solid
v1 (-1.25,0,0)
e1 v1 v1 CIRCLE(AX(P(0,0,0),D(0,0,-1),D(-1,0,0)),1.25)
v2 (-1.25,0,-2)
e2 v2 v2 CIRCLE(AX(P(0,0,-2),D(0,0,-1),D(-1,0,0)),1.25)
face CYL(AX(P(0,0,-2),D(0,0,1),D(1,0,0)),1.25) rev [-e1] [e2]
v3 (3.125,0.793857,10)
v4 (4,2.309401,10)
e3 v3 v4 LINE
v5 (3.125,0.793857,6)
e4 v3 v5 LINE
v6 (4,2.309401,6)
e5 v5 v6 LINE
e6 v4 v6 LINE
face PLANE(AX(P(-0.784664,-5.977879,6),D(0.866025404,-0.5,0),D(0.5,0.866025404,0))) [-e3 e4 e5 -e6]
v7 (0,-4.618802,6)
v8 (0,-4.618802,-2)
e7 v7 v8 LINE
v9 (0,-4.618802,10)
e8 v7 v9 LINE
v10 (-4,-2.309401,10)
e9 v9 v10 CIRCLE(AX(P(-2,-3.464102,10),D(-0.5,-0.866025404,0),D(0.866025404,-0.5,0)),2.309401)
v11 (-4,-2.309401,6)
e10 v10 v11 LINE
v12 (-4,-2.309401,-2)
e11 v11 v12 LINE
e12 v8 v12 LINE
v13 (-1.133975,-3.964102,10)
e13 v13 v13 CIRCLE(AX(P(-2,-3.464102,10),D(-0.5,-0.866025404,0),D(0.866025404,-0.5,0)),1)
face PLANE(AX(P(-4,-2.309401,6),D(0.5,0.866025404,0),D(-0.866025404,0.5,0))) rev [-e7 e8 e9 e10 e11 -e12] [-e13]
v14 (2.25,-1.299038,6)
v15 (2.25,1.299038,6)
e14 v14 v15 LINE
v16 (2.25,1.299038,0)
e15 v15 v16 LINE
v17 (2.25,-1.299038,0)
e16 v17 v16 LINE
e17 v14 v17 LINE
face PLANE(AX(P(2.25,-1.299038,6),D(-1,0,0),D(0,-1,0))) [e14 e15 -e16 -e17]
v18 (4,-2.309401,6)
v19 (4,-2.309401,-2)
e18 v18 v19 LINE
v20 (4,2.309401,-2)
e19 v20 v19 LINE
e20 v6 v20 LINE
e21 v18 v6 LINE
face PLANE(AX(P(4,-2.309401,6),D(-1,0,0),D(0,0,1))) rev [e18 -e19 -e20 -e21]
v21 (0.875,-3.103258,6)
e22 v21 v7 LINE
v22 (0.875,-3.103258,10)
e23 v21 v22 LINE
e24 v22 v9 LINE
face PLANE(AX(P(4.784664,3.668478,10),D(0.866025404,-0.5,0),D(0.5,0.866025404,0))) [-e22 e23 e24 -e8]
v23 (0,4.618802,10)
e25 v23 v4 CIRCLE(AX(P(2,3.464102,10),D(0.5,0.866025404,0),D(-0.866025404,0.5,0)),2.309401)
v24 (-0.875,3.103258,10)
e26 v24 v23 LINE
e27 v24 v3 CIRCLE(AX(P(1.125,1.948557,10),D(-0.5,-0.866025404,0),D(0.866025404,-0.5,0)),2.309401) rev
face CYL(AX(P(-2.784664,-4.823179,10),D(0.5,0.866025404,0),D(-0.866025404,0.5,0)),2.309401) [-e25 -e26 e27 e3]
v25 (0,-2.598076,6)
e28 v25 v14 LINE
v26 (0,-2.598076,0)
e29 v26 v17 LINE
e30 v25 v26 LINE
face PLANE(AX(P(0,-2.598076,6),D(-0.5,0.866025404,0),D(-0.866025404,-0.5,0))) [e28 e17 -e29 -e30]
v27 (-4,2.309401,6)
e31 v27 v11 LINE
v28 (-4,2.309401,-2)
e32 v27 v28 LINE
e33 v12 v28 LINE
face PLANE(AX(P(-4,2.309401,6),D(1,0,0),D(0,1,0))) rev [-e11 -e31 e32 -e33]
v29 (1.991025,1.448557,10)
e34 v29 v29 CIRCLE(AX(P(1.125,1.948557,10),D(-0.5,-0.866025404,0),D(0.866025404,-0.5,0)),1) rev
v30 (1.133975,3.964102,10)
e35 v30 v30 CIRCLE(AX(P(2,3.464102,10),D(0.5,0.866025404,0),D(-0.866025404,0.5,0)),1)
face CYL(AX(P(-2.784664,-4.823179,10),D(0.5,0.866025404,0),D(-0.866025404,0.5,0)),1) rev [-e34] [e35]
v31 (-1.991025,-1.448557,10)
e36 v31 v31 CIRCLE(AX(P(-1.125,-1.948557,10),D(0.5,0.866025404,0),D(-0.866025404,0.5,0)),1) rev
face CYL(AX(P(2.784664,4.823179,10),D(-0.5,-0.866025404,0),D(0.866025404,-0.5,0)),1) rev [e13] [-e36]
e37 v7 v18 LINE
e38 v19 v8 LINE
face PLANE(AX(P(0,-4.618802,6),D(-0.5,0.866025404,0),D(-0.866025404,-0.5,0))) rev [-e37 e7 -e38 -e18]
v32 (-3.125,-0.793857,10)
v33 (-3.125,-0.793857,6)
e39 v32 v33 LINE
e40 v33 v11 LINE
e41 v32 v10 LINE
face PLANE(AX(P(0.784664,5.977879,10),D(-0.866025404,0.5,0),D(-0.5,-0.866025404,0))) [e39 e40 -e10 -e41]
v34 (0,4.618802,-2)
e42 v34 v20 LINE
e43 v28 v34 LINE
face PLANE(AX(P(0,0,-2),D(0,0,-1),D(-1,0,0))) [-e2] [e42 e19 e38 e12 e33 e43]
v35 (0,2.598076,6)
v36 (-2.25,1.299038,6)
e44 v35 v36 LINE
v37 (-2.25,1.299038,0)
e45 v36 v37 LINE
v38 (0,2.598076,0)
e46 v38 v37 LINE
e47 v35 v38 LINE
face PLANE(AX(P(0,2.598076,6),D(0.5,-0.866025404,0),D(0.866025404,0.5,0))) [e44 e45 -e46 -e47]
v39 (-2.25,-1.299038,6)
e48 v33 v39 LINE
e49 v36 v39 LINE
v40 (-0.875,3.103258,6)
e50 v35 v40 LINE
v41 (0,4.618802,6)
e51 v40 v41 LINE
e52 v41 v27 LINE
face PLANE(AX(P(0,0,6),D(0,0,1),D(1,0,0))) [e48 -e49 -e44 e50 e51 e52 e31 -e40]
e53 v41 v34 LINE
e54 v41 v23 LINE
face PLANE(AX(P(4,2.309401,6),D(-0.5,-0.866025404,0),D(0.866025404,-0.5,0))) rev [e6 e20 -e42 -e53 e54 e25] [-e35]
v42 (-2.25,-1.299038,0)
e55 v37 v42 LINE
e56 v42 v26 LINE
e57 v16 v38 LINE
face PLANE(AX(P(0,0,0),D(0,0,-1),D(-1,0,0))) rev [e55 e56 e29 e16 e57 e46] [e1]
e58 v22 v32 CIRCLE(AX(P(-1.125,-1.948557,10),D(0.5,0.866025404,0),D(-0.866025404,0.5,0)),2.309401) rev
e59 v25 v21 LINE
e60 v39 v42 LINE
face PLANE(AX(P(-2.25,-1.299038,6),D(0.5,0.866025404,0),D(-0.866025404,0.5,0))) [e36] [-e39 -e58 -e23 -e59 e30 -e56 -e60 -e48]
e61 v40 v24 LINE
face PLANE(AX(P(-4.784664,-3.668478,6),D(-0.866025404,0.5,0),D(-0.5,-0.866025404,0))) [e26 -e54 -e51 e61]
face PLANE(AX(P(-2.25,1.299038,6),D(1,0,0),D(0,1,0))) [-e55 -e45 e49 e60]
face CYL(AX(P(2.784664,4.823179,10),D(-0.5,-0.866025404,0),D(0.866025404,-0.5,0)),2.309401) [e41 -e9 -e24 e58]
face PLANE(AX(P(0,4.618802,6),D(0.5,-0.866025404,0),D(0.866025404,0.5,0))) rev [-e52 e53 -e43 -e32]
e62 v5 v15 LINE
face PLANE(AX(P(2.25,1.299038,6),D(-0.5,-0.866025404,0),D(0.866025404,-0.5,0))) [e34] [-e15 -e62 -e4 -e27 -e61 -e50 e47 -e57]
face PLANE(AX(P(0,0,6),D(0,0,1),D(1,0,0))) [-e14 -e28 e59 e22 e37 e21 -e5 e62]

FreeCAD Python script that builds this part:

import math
import FreeCAD as App
import Part
import Sketcher

V = App.Vector
Q = App.Units.Quantity

doc = App.newDocument("Part")
body = doc.addObject("PartDesign::Body", "Body")

# Sketch on XY plane
sketch1 = body.newObject("Sketcher::SketchObject", "Sketch")
sketch1.AttachmentSupport = (doc.getObject("XY_Plane"), [""])
sketch1.MapMode = "FlatFace"
sketch1.addGeometry([
    Part.LineSegment(V(0, 4.618802, 0), V(-4, 2.309401, 0)),  # 0
    Part.LineSegment(V(-4, 2.309401, 0), V(-4, -2.309401, 0)),  # 1
    Part.LineSegment(V(-4, -2.309401, 0), V(0, -4.618802, 0)),  # 2
    Part.LineSegment(V(0, -4.618802, 0), V(4, -2.309401, 0)),  # 3
    Part.LineSegment(V(4, -2.309401, 0), V(4, 2.309401, 0)),  # 4
    Part.LineSegment(V(4, 2.309401, 0), V(0, 4.618802, 0)),  # 5
    Part.LineSegment(V(-2.25, 1.299038, 0), V(0, 2.598076, 0)),  # 6
    Part.LineSegment(V(0, 2.598076, 0), V(2.25, 1.299038, 0)),  # 7
    Part.LineSegment(V(2.25, 1.299038, 0), V(2.25, -1.299038, 0)),  # 8
    Part.LineSegment(V(2.25, -1.299038, 0), V(0, -2.598076, 0)),  # 9
    Part.LineSegment(V(0, -2.598076, 0), V(-2.25, -1.299038, 0)),  # 10
    Part.LineSegment(V(-2.25, -1.299038, 0), V(-2.25, 1.299038, 0)),  # 11
], False)
sketch1.addConstraint([
    Sketcher.Constraint("Coincident", 0, 2, 1, 1),
    Sketcher.Constraint("Coincident", 1, 2, 2, 1),
    Sketcher.Constraint("Coincident", 2, 2, 3, 1),
    Sketcher.Constraint("Coincident", 3, 2, 4, 1),
    Sketcher.Constraint("Coincident", 4, 2, 5, 1),
    Sketcher.Constraint("Coincident", 5, 2, 0, 1),
    Sketcher.Constraint("Coincident", 6, 2, 7, 1),
    Sketcher.Constraint("Coincident", 7, 2, 8, 1),
    Sketcher.Constraint("Coincident", 8, 2, 9, 1),
    Sketcher.Constraint("Coincident", 9, 2, 10, 1),
    Sketcher.Constraint("Coincident", 10, 2, 11, 1),
    Sketcher.Constraint("Coincident", 11, 2, 6, 1),
    Sketcher.Constraint("Vertical", 1),
    Sketcher.Constraint("Vertical", 4),
    Sketcher.Constraint("Vertical", 8),
    Sketcher.Constraint("Vertical", 11),
    Sketcher.Constraint("Symmetric", 0, 2, 3, 2, -1, 1),
    Sketcher.Constraint("Symmetric", 2, 2, 5, 2, -1, 1),
    Sketcher.Constraint("Symmetric", 6, 2, 9, 2, -1, 1),
    Sketcher.Constraint("Symmetric", 7, 2, 10, 2, -1, 1),
    Sketcher.Constraint("PointOnObject", 2, 2, -2),
    Sketcher.Constraint("PointOnObject", 6, 2, -2),
    Sketcher.Constraint("Parallel", 2, 5),
    Sketcher.Constraint("Parallel", 3, 6),
    Sketcher.Constraint("Parallel", 5, 7),
    Sketcher.Constraint("Parallel", 6, 9),
    Sketcher.Constraint("Horizontal", 1, 2, 3, 2),
    Sketcher.Constraint("Angle", 0, Q("-150 deg")),
    Sketcher.Constraint("DistanceX", 0, 2, -1, 1, 4.0),
    Sketcher.Constraint("DistanceX", -1, 1, 7, 2, 2.25),
    Sketcher.Constraint("DistanceY", -1, 1, 0, 2, 2.309401),
    Sketcher.Constraint("DistanceY", 8, 2, 8, 1, 2.598076),
])
pad1 = body.newObject("PartDesign::Pad", "Pad")
pad1.Profile = sketch1
pad1.Length = 6

# Sketch on XY plane
sketch2 = body.newObject("Sketcher::SketchObject", "Sketch001")
sketch2.AttachmentSupport = (doc.getObject("XY_Plane"), [""])
sketch2.MapMode = "FlatFace"
sketch2.addGeometry([
    Part.LineSegment(V(0, 4.618802, 0), V(4, 2.309401, 0)),  # 0
    Part.LineSegment(V(4, 2.309401, 0), V(4, -2.309401, 0)),  # 1
    Part.LineSegment(V(4, -2.309401, 0), V(0, -4.618802, 0)),  # 2
    Part.LineSegment(V(0, -4.618802, 0), V(-4, -2.309401, 0)),  # 3
    Part.LineSegment(V(-4, -2.309401, 0), V(-4, 2.309401, 0)),  # 4
    Part.LineSegment(V(-4, 2.309401, 0), V(0, 4.618802, 0)),  # 5
    Part.Circle(V(0, 0, 0), V(0, 0, 1), 1.25),  # 6
], False)
sketch2.addConstraint([
    Sketcher.Constraint("Coincident", 0, 2, 1, 1),
    Sketcher.Constraint("Coincident", 1, 2, 2, 1),
    Sketcher.Constraint("Coincident", 2, 2, 3, 1),
    Sketcher.Constraint("Coincident", 3, 2, 4, 1),
    Sketcher.Constraint("Coincident", 4, 2, 5, 1),
    Sketcher.Constraint("Coincident", 5, 2, 0, 1),
    Sketcher.Constraint("Vertical", 1),
    Sketcher.Constraint("Vertical", 4),
    Sketcher.Constraint("Coincident", 6, 3, -1, 1),
    Sketcher.Constraint("Symmetric", 0, 2, 3, 2, -1, 1),
    Sketcher.Constraint("Symmetric", 2, 2, 5, 2, -1, 1),
    Sketcher.Constraint("PointOnObject", 2, 2, -2),
    Sketcher.Constraint("Parallel", 2, 5),
    Sketcher.Constraint("Horizontal", 1, 2, 3, 2),
    Sketcher.Constraint("Diameter", 6, 2.5),
    Sketcher.Constraint("Angle", 0, Q("-30 deg")),
    Sketcher.Constraint("DistanceX", -1, 1, 0, 2, 4.0),
    Sketcher.Constraint("DistanceY", -1, 1, 0, 2, 2.309401),
])
pad2 = body.newObject("PartDesign::Pad", "Pad001")
pad2.Profile = sketch2
pad2.Length = 2
pad2.Reversed = True

# Sketch on an angled plane
sketch3 = body.newObject("Sketcher::SketchObject", "Sketch002")
sketch3.Placement = App.Placement(V(2, 3.464102, 0), App.Rotation(V(0.866025404, -0.5, 0), V(0, 0, -1), V(0.5, 0.866025404, 0), "ZXY"))
sketch3.addGeometry([
    Part.LineSegment(V(2.309401, -6, 0), V(-2.309401, -6, 0)),  # 0
    Part.LineSegment(V(-2.309401, -6, 0), V(-2.309401, -10, 0)),  # 1
    Part.ArcOfCircle(Part.Circle(V(0, -10, 0), V(0, 0, 1), 2.309401), math.radians(180), math.radians(360)),  # 2
    Part.LineSegment(V(2.309401, -10, 0), V(2.309401, -6, 0)),  # 3
    Part.Circle(V(0, -10, 0), V(0, 0, 1), 1),  # 4
], False)
sketch3.addConstraint([
    Sketcher.Constraint("Coincident", 0, 2, 1, 1),
    Sketcher.Constraint("Tangent", 1, 2, 2, 1),
    Sketcher.Constraint("Tangent", 2, 2, 3, 1),
    Sketcher.Constraint("Coincident", 3, 2, 0, 1),
    Sketcher.Constraint("Horizontal", 0),
    Sketcher.Constraint("Vertical", 1),
    Sketcher.Constraint("Vertical", 3),
    Sketcher.Constraint("Coincident", 4, 3, 2, 3),
    Sketcher.Constraint("PointOnObject", 2, 3, -2),
    Sketcher.Constraint("Diameter", 4, 2.0),
    Sketcher.Constraint("DistanceY", 1, 2, 1, 1, 4.0),
    Sketcher.Constraint("DistanceY", 2, 3, -1, 1, 10.0),
    Sketcher.Constraint("Radius", 2, 2.309401),
])
pad3 = body.newObject("PartDesign::Pad", "Pad002")
pad3.Profile = sketch3
pad3.Length = 1.75
pad3.Reversed = True

# Sketch on an angled plane
sketch4 = body.newObject("Sketcher::SketchObject", "Sketch003")
sketch4.Placement = App.Placement(V(-2, -3.464102, 0), App.Rotation(V(0.866025404, -0.5, 0), V(0, 0, 1), V(-0.5, -0.866025404, 0), "ZXY"))
sketch4.addGeometry([
    Part.LineSegment(V(-2.309401, 10, 0), V(-2.309401, 6, 0)),  # 0
    Part.LineSegment(V(-2.309401, 6, 0), V(2.309401, 6, 0)),  # 1
    Part.LineSegment(V(2.309401, 6, 0), V(2.309401, 10, 0)),  # 2
    Part.ArcOfCircle(Part.Circle(V(0, 10, 0), V(0, 0, 1), 2.309401), math.radians(0), math.radians(180)),  # 3
    Part.Circle(V(0, 10, 0), V(0, 0, 1), 1),  # 4
], False)
sketch4.addConstraint([
    Sketcher.Constraint("Coincident", 0, 2, 1, 1),
    Sketcher.Constraint("Coincident", 1, 2, 2, 1),
    Sketcher.Constraint("Tangent", 2, 2, 3, 1),
    Sketcher.Constraint("Tangent", 3, 2, 0, 1),
    Sketcher.Constraint("Vertical", 0),
    Sketcher.Constraint("Horizontal", 1),
    Sketcher.Constraint("Vertical", 2),
    Sketcher.Constraint("Coincident", 4, 3, 3, 3),
    Sketcher.Constraint("PointOnObject", 3, 3, -2),
    Sketcher.Constraint("Diameter", 4, 2.0),
    Sketcher.Constraint("DistanceY", 0, 2, 0, 1, 4.0),
    Sketcher.Constraint("DistanceY", -1, 1, 3, 3, 10.0),
    Sketcher.Constraint("Radius", 3, 2.309401),
])
pad4 = body.newObject("PartDesign::Pad", "Pad003")
pad4.Profile = sketch4
pad4.Length = 1.75
pad4.Reversed = True

doc.recompute()
